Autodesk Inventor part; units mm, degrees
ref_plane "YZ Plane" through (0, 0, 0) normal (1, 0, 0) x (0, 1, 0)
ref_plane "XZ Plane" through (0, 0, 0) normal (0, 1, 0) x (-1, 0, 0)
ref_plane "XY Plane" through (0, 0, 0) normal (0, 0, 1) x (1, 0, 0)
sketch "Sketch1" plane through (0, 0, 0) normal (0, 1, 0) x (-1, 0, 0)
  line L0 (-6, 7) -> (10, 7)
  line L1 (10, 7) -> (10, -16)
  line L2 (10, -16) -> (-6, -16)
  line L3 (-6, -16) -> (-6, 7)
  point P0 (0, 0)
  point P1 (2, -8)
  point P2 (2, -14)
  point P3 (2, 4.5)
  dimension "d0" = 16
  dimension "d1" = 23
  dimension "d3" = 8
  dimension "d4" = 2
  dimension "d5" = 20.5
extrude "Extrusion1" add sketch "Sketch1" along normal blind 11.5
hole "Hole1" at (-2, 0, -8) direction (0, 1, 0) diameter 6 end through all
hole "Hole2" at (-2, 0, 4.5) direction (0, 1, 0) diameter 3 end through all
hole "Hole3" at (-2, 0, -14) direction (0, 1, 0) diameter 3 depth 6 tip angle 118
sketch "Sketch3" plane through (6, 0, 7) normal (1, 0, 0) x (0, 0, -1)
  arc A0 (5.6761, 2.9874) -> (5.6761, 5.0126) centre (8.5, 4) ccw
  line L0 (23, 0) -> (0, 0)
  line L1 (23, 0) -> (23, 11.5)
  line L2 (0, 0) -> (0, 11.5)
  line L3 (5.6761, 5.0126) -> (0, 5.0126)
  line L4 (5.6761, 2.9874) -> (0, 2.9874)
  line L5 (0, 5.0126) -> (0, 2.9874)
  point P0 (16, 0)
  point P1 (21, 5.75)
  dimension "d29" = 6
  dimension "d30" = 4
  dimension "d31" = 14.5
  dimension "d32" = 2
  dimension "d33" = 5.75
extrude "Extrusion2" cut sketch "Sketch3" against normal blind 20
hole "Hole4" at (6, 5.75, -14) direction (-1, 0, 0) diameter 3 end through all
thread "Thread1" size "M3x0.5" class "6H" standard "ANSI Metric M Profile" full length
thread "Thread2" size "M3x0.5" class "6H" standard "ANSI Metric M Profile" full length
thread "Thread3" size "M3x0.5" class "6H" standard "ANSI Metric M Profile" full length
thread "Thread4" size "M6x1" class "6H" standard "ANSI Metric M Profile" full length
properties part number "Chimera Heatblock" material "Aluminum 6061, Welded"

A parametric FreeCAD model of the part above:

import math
import FreeCAD as App
import Part
import Sketcher
from FreeCAD import Vector


def add_polygon(sketch, points):
    """Adds a closed chain of lines whose ends are joined by coincident constraints."""
    first, n = sketch.GeometryCount, len(points)
    for a, b in zip(points, points[1:] + points[:1]):
        sketch.addGeometry(Part.LineSegment(App.Vector(*a, 0), App.Vector(*b, 0)), False)
    for i in range(n):
        sketch.addConstraint(Sketcher.Constraint("Coincident", first + i, 2, first + (i + 1) % n, 1))

doc = App.newDocument("Part")
params = doc.addObject("Spreadsheet::Sheet", "Params")
for row, (alias, value) in enumerate([
    ("sketch1_width", "16 mm"),
    ("sketch1_height", "23 mm"),
    ("pad1_length", "11.5 mm"),
    ("sketch2_diameter", "6 mm"),
    ("hole_diameter", "6 mm"),
    ("sketch3_diameter", "3 mm"),
    ("hole2_diameter", "3 mm"),
    ("sketch4_diameter", "3 mm"),
    ("hole3_diameter", "3 mm"),
    ("hole3_depth", "6 mm"),
    ("sketch5_radius", "3 mm"),
    ("pocket1_length", "20 mm"),
    ("sketch6_diameter", "3 mm"),
    ("hole4_diameter", "3 mm"),
], start=1):
    params.set(f"A{row}", alias)
    params.set(f"B{row}", "=" + value)
    params.setAlias(f"B{row}", alias)

body = doc.addObject("PartDesign::Body", "Body")

# Sketch on XZ plane
sketch1 = body.newObject("Sketcher::SketchObject", "Sketch")
sketch1.AttachmentSupport = (doc.getObject("XZ_Plane"), [""])
sketch1.MapMode = "FlatFace"
add_polygon(sketch1, [(-10, 7), (6, 7), (6, -16), (-10, -16)])  # lines 0-3
sketch1.addConstraint([
    Sketcher.Constraint("Horizontal", 0),
    Sketcher.Constraint("Vertical", 1),
    Sketcher.Constraint("Horizontal", 2),
    Sketcher.Constraint("Vertical", 3),
    Sketcher.Constraint("DistanceX", 0, 1, 0, 2, 16.0),
    Sketcher.Constraint("DistanceY", 1, 2, 1, 1, 23.0),
    Sketcher.Constraint("DistanceY", 1, 2, -1, 1, 16.0),
    Sketcher.Constraint("DistanceX", -1, 1, 0, 2, 6.0),
])
sketch1.setExpression("Constraints[8]", "Params.sketch1_width")
sketch1.setExpression("Constraints[9]", "Params.sketch1_height")
pad1 = body.newObject("PartDesign::Pad", "Pad")
pad1.Profile = sketch1
pad1.setExpression("Length", "Params.pad1_length")
pad1.Reversed = True

# Sketch on XZ plane
sketch2 = body.newObject("Sketcher::SketchObject", "Sketch001")
sketch2.AttachmentSupport = (doc.getObject("XZ_Plane"), [""])
sketch2.MapMode = "FlatFace"
sketch2.addGeometry(Part.Circle(Vector(-2, -8, 0), Vector(0, 0, 1), 3), False)
sketch2.addConstraint([
    Sketcher.Constraint("Diameter", 0, 6.0),
    Sketcher.Constraint("DistanceX", 0, 3, -1, 1, 2.0),
    Sketcher.Constraint("DistanceY", 0, 3, -1, 1, 8.0),
])
sketch2.setExpression("Constraints[0]", "Params.sketch2_diameter")
doc.recompute()
hole = body.newObject("PartDesign::Hole", "Hole")
hole.Profile = sketch2
hole.ThreadType = "None"
hole.setExpression("Diameter", "Params.hole_diameter")
hole.DepthType = "ThroughAll"

# Sketch on XZ plane
sketch3 = body.newObject("Sketcher::SketchObject", "Sketch002")
sketch3.AttachmentSupport = (doc.getObject("XZ_Plane"), [""])
sketch3.MapMode = "FlatFace"
sketch3.addGeometry(Part.Circle(Vector(-2, 4.5, 0), Vector(0, 0, 1), 1.5), False)
sketch3.addConstraint([
    Sketcher.Constraint("Diameter", 0, 3.0),
    Sketcher.Constraint("DistanceX", 0, 3, -1, 1, 2.0),
    Sketcher.Constraint("DistanceY", -1, 1, 0, 3, 4.5),
])
sketch3.setExpression("Constraints[0]", "Params.sketch3_diameter")
doc.recompute()
hole2 = body.newObject("PartDesign::Hole", "Hole001")
hole2.Profile = sketch3
hole2.ThreadType = "None"
hole2.setExpression("Diameter", "Params.hole2_diameter")
hole2.DepthType = "ThroughAll"

# Sketch on XZ plane
sketch4 = body.newObject("Sketcher::SketchObject", "Sketch003")
sketch4.AttachmentSupport = (doc.getObject("XZ_Plane"), [""])
sketch4.MapMode = "FlatFace"
sketch4.addGeometry(Part.Circle(Vector(-2, -14, 0), Vector(0, 0, 1), 1.5), False)
sketch4.addConstraint([
    Sketcher.Constraint("Diameter", 0, 3.0),
    Sketcher.Constraint("DistanceX", 0, 3, -1, 1, 2.0),
    Sketcher.Constraint("DistanceY", 0, 3, -1, 1, 14.0),
])
sketch4.setExpression("Constraints[0]", "Params.sketch4_diameter")
doc.recompute()
hole3 = body.newObject("PartDesign::Hole", "Hole002")
hole3.Profile = sketch4
hole3.ThreadType = "None"
hole3.setExpression("Diameter", "Params.hole3_diameter")
hole3.DepthType = "Dimension"
hole3.setExpression("Depth", "Params.hole3_depth")
hole3.DrillPoint = "Angled"
hole3.DrillPointAngle = 118

# Sketch on YZ plane
sketch5 = body.newObject("Sketcher::SketchObject", "Sketch004")
sketch5.AttachmentSupport = (doc.getObject("YZ_Plane"), [""])
sketch5.MapMode = "FlatFace"
sketch5.AttachmentOffset = App.Placement(Vector(0, 0, 6), App.Rotation())
sketch5.addGeometry([
    Part.LineSegment(Vector(3, 7, 0), Vector(3, 1.3, 0)),
    Part.ArcOfCircle(Part.Circle(Vector(4, -1.5, 0), Vector(0, 0, 1), 3), math.radians(110), math.radians(430)),
    Part.LineSegment(Vector(5, 1.3, 0), Vector(5, 7, 0)),
    Part.LineSegment(Vector(5, 7, 0), Vector(3, 7, 0)),
], False)
sketch5.addConstraint([
    Sketcher.Constraint("Coincident", 0, 2, 1, 1),
    Sketcher.Constraint("Coincident", 1, 2, 2, 1),
    Sketcher.Constraint("Coincident", 2, 2, 3, 1),
    Sketcher.Constraint("Coincident", 3, 2, 0, 1),
    Sketcher.Constraint("Vertical", 0),
    Sketcher.Constraint("Vertical", 2),
    Sketcher.Constraint("Horizontal", 3),
    Sketcher.Constraint("Horizontal", 0, 2, 1, 2),
    Sketcher.Constraint("Radius", 1, 3.0),
    Sketcher.Constraint("DistanceX", -1, 1, 1, 3, 4.0),
    Sketcher.Constraint("DistanceY", -1, 1, 2, 2, 7.0),
    Sketcher.Constraint("DistanceY", 1, 3, -1, 1, 1.5),
    Sketcher.Constraint("DistanceY", 0, 2, 0, 1, 5.676),
])
sketch5.setExpression("Constraints[8]", "Params.sketch5_radius")
pocket1 = body.newObject("PartDesign::Pocket", "Pocket")
pocket1.Profile = sketch5
pocket1.setExpression("Length", "Params.pocket1_length")

# Sketch on YZ plane
sketch6 = body.newObject("Sketcher::SketchObject", "Sketch005")
sketch6.AttachmentSupport = (doc.getObject("YZ_Plane"), [""])
sketch6.MapMode = "FlatFace"
sketch6.AttachmentOffset = App.Placement(Vector(0, 0, 6), App.Rotation())
sketch6.addGeometry(Part.Circle(Vector(5.8, -14, 0), Vector(0, 0, 1), 1.5), False)
sketch6.addConstraint([
    Sketcher.Constraint("Diameter", 0, 3.0),
    Sketcher.Constraint("DistanceY", 0, 3, -1, 1, 14.0),
    Sketcher.Constraint("DistanceX", -1, 1, 0, 3, 5.75),
])
sketch6.setExpression("Constraints[0]", "Params.sketch6_diameter")
doc.recompute()
hole4 = body.newObject("PartDesign::Hole", "Hole003")
hole4.Profile = sketch6
hole4.ThreadType = "None"
hole4.setExpression("Diameter", "Params.hole4_diameter")
hole4.DepthType = "ThroughAll"

doc.recompute()
